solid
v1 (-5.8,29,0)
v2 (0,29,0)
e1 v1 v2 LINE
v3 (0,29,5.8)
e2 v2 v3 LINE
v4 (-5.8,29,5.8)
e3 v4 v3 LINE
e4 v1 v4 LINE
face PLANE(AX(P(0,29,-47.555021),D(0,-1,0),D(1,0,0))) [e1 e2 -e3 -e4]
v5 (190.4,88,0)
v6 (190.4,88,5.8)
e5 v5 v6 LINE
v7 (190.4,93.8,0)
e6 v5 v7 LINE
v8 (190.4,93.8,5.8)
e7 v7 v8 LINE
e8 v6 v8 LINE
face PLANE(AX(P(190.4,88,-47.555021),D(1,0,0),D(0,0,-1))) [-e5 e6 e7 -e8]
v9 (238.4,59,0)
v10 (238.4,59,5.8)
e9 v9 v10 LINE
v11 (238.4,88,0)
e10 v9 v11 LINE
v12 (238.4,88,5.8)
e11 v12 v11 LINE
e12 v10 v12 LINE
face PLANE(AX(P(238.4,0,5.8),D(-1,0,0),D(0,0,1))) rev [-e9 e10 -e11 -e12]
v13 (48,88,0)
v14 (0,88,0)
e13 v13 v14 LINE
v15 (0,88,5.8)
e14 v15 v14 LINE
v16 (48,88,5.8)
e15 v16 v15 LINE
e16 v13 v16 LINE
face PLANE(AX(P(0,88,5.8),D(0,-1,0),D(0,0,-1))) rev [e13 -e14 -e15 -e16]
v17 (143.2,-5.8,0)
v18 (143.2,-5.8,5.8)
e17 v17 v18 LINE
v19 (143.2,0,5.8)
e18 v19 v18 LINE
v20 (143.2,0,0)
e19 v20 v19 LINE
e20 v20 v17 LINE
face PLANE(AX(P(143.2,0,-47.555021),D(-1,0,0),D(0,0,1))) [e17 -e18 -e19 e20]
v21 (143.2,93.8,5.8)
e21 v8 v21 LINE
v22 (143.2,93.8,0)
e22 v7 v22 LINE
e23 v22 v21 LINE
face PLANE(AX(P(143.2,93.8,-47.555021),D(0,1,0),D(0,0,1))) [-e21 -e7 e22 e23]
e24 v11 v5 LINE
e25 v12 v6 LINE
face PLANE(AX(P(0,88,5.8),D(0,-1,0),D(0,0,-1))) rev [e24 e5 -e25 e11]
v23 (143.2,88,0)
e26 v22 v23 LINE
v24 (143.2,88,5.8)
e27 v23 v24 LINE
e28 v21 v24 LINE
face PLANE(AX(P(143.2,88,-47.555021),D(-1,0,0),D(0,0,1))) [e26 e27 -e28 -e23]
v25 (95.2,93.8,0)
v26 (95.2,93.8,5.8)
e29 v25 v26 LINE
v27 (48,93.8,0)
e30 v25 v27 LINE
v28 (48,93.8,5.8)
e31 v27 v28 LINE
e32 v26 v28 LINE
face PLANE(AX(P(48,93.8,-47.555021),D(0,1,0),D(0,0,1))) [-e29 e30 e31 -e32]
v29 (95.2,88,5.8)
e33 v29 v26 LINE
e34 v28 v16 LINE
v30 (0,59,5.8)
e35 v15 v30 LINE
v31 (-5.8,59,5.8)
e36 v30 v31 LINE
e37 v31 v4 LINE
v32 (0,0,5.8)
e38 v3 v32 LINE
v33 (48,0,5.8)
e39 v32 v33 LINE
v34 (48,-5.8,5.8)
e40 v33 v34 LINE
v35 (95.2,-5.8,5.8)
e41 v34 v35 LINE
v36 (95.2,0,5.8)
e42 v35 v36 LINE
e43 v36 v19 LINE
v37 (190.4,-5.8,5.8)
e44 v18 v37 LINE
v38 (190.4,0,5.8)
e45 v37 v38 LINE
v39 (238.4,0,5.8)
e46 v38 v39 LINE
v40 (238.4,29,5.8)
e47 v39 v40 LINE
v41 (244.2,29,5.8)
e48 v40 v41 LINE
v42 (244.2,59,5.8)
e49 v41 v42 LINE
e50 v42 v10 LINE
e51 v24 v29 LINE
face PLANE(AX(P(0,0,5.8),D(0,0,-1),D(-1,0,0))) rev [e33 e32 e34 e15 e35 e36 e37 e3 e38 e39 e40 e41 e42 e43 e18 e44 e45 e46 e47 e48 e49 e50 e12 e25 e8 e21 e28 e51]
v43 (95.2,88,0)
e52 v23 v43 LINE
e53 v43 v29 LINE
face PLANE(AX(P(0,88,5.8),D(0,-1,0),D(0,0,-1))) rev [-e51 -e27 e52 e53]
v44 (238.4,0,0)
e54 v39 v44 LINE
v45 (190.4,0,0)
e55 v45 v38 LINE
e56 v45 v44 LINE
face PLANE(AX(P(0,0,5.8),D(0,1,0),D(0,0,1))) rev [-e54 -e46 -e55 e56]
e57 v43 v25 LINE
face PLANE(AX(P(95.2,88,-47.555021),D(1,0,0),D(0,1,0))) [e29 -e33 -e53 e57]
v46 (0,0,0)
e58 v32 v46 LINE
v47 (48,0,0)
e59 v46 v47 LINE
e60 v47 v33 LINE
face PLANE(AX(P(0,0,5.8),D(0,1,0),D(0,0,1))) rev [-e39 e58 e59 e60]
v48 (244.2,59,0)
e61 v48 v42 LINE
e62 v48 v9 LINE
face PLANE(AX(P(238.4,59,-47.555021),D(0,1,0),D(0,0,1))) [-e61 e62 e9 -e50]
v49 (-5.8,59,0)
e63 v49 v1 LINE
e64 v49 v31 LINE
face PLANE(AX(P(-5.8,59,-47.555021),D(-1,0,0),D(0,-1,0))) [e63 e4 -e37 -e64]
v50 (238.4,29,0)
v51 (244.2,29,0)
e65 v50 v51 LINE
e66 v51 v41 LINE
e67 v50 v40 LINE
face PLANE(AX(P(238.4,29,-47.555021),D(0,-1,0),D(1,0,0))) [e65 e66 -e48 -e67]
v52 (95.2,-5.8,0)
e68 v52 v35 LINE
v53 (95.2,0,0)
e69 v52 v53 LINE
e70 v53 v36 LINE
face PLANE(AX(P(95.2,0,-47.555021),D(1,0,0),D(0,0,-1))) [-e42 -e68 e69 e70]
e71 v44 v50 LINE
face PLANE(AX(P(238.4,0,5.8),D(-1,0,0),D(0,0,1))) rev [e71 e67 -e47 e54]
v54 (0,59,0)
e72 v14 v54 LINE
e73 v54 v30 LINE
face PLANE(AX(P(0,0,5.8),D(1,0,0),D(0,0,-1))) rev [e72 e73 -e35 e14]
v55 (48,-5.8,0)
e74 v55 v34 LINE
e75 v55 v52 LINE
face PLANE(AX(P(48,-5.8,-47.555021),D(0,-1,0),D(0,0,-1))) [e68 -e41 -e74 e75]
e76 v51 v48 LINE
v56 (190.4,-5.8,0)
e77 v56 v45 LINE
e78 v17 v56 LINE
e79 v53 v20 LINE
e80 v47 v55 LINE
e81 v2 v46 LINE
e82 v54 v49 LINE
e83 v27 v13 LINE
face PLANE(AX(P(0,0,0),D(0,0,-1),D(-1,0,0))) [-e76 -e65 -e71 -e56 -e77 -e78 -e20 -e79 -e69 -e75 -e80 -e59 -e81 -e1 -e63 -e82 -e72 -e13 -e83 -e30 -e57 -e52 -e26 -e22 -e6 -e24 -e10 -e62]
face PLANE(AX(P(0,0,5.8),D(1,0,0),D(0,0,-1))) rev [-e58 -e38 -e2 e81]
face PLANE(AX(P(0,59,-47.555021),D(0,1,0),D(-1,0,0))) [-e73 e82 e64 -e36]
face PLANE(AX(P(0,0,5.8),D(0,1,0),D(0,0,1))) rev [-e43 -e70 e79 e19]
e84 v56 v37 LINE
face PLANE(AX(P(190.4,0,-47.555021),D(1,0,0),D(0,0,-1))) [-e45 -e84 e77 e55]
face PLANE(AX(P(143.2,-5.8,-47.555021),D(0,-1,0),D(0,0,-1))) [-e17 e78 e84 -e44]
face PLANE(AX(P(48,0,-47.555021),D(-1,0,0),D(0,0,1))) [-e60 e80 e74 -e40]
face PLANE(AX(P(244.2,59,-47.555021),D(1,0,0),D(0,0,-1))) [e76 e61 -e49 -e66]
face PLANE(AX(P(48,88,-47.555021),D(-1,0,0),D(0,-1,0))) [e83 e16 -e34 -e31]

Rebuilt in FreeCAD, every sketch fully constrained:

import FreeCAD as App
import Part
import Sketcher

doc = App.newDocument("Part")
body = doc.addObject("PartDesign::Body", "Body")

# Sketch on XY plane
sketch1 = doc.addObject("Sketcher::SketchObject", "Sketch")
body.addObject(sketch1)
sketch1.AttachmentSupport = (doc.XY_Plane, [""])
sketch1.MapMode = "FlatFace"
sketch1.addGeometry([
    Part.LineSegment(App.Vector(0, 88, 0), App.Vector(0, 0, 0)),
    Part.LineSegment(App.Vector(0, 0, 0), App.Vector(238, 0, 0)),
    Part.LineSegment(App.Vector(238, 0, 0), App.Vector(238, 88, 0)),
    Part.LineSegment(App.Vector(238, 88, 0), App.Vector(0, 88, 0)),
], False)
sketch1.addConstraint([
    Sketcher.Constraint("Coincident", 0, 2, 1, 1),
    Sketcher.Constraint("Coincident", 1, 2, 2, 1),
    Sketcher.Constraint("Coincident", 2, 2, 3, 1),
    Sketcher.Constraint("Coincident", 3, 2, 0, 1),
    Sketcher.Constraint("Vertical", 0),
    Sketcher.Constraint("Horizontal", 1),
    Sketcher.Constraint("Vertical", 2),
    Sketcher.Constraint("Horizontal", 3),
    Sketcher.Constraint("Coincident", 0, 2, -1, 1),
    Sketcher.Constraint("DistanceY", 0, 2, 0, 1, 88.0),
    Sketcher.Constraint("DistanceX", 1, 1, 1, 2, 238.4),
])
pad1 = doc.addObject("PartDesign::Pad", "Pad")
body.addObject(pad1)
pad1.Profile = sketch1
pad1.Length = 5.8

# Sketch on XY plane
sketch2 = doc.addObject("Sketcher::SketchObject", "Sketch001")
body.addObject(sketch2)
sketch2.AttachmentSupport = (doc.XY_Plane, [""])
sketch2.MapMode = "FlatFace"
sketch2.AttachmentOffset = App.Placement(App.Vector(0, 0, 5.8), App.Rotation())
sketch2.addGeometry([
    Part.LineSegment(App.Vector(-6, 59, 0), App.Vector(-6, 29, 0)),  # 0
    Part.LineSegment(App.Vector(-6, 29, 0), App.Vector(0, 29, 0)),  # 1
    Part.LineSegment(App.Vector(0, 29, 0), App.Vector(0, 59, 0)),  # 2
    Part.LineSegment(App.Vector(0, 59, 0), App.Vector(-6, 59, 0)),  # 3
    Part.LineSegment(App.Vector(238, 59, 0), App.Vector(238, 29, 0)),  # 4
    Part.LineSegment(App.Vector(238, 29, 0), App.Vector(244, 29, 0)),  # 5
    Part.LineSegment(App.Vector(244, 29, 0), App.Vector(244, 59, 0)),  # 6
    Part.LineSegment(App.Vector(244, 59, 0), App.Vector(238, 59, 0)),  # 7
    Part.LineSegment(App.Vector(48, 94, 0), App.Vector(48, 88, 0)),  # 8
    Part.LineSegment(App.Vector(48, 88, 0), App.Vector(95, 88, 0)),  # 9
    Part.LineSegment(App.Vector(95, 88, 0), App.Vector(95, 94, 0)),  # 10
    Part.LineSegment(App.Vector(95, 94, 0), App.Vector(48, 94, 0)),  # 11
    Part.LineSegment(App.Vector(143, 94, 0), App.Vector(143, 88, 0)),  # 12
    Part.LineSegment(App.Vector(143, 88, 0), App.Vector(190, 88, 0)),  # 13
    Part.LineSegment(App.Vector(190, 88, 0), App.Vector(190, 94, 0)),  # 14
    Part.LineSegment(App.Vector(190, 94, 0), App.Vector(143, 94, 0)),  # 15
    Part.LineSegment(App.Vector(48, 0, 0), App.Vector(48, -6, 0)),  # 16
    Part.LineSegment(App.Vector(48, -6, 0), App.Vector(95, -6, 0)),  # 17
    Part.LineSegment(App.Vector(95, -6, 0), App.Vector(95, 0, 0)),  # 18
    Part.LineSegment(App.Vector(95, 0, 0), App.Vector(48, 0, 0)),  # 19
    Part.LineSegment(App.Vector(143, 0, 0), App.Vector(143, -6, 0)),  # 20
    Part.LineSegment(App.Vector(143, -6, 0), App.Vector(190, -6, 0)),  # 21
    Part.LineSegment(App.Vector(190, -6, 0), App.Vector(190, 0, 0)),  # 22
    Part.LineSegment(App.Vector(190, 0, 0), App.Vector(143, 0, 0)),  # 23
], False)
sketch2.addConstraint([
    Sketcher.Constraint("Coincident", 0, 2, 1, 1),
    Sketcher.Constraint("Coincident", 1, 2, 2, 1),
    Sketcher.Constraint("Coincident", 2, 2, 3, 1),
    Sketcher.Constraint("Coincident", 3, 2, 0, 1),
    Sketcher.Constraint("Coincident", 4, 2, 5, 1),
    Sketcher.Constraint("Coincident", 5, 2, 6, 1),
    Sketcher.Constraint("Coincident", 6, 2, 7, 1),
    Sketcher.Constraint("Coincident", 7, 2, 4, 1),
    Sketcher.Constraint("Coincident", 8, 2, 9, 1),
    Sketcher.Constraint("Coincident", 9, 2, 10, 1),
    Sketcher.Constraint("Coincident", 10, 2, 11, 1),
    Sketcher.Constraint("Coincident", 11, 2, 8, 1),
    Sketcher.Constraint("Coincident", 12, 2, 13, 1),
    Sketcher.Constraint("Coincident", 13, 2, 14, 1),
    Sketcher.Constraint("Coincident", 14, 2, 15, 1),
    Sketcher.Constraint("Coincident", 15, 2, 12, 1),
    Sketcher.Constraint("Coincident", 16, 2, 17, 1),
    Sketcher.Constraint("Coincident", 17, 2, 18, 1),
    Sketcher.Constraint("Coincident", 18, 2, 19, 1),
    Sketcher.Constraint("Coincident", 19, 2, 16, 1),
    Sketcher.Constraint("Coincident", 20, 2, 21, 1),
    Sketcher.Constraint("Coincident", 21, 2, 22, 1),
    Sketcher.Constraint("Coincident", 22, 2, 23, 1),
    Sketcher.Constraint("Coincident", 23, 2, 20, 1),
    Sketcher.Constraint("Vertical", 0),
    Sketcher.Constraint("Horizontal", 1),
    Sketcher.Constraint("Vertical", 2),
    Sketcher.Constraint("Horizontal", 3),
    Sketcher.Constraint("Vertical", 4),
    Sketcher.Constraint("Horizontal", 5),
    Sketcher.Constraint("Vertical", 6),
    Sketcher.Constraint("Horizontal", 7),
    Sketcher.Constraint("Vertical", 8),
    Sketcher.Constraint("Horizontal", 9),
    Sketcher.Constraint("Vertical", 10),
    Sketcher.Constraint("Horizontal", 11),
    Sketcher.Constraint("Vertical", 12),
    Sketcher.Constraint("Horizontal", 13),
    Sketcher.Constraint("Vertical", 14),
    Sketcher.Constraint("Horizontal", 15),
    Sketcher.Constraint("Vertical", 16),
    Sketcher.Constraint("Horizontal", 17),
    Sketcher.Constraint("Vertical", 18),
    Sketcher.Constraint("Horizontal", 19),
    Sketcher.Constraint("Vertical", 20),
    Sketcher.Constraint("Horizontal", 21),
    Sketcher.Constraint("Vertical", 22),
    Sketcher.Constraint("Horizontal", 23),
    Sketcher.Constraint("PointOnObject", 1, 2, -2),
    Sketcher.Constraint("PointOnObject", 18, 2, -1),
    Sketcher.Constraint("PointOnObject", 22, 2, -1),
    Sketcher.Constraint("Horizontal", 1, 2, 4, 2),
    Sketcher.Constraint("Horizontal", 3, 2, 6, 2),
    Sketcher.Constraint("Horizontal", 9, 2, 12, 2),
    Sketcher.Constraint("Horizontal", 11, 2, 14, 2),
    Sketcher.Constraint("Horizontal", 17, 2, 20, 2),
    Sketcher.Constraint("Vertical", 11, 2, 16, 2),
    Sketcher.Constraint("Vertical", 10, 2, 17, 2),
    Sketcher.Constraint("Vertical", 15, 2, 20, 2),
    Sketcher.Constraint("Vertical", 14, 2, 21, 2),
    Sketcher.Constraint("Equal", 3, 5),
    Sketcher.Constraint("Equal", 11, 13),
    Sketcher.Constraint("Equal", 7, 8),
    Sketcher.Constraint("Equal", 14, 16),
    Sketcher.Constraint("DistanceY", 0, 2, 0, 1, 30.0),
    Sketcher.Constraint("DistanceX", 1, 1, 1, 2, 5.8),
    Sketcher.Constraint("DistanceX", 9, 1, 9, 2, 47.2),
    Sketcher.Constraint("DistanceY", -1, 1, 0, 2, 29.0),
    Sketcher.Constraint("DistanceX", -1, 1, 8, 2, 48.0),
    Sketcher.Constraint("DistanceY", -1, 1, 8, 2, 88.0),
    Sketcher.Constraint("DistanceX", 0, 2, 5, 2, 250.0),
    Sketcher.Constraint("DistanceX", 9, 2, 12, 2, 48.0),
])
pad2 = doc.addObject("PartDesign::Pad", "Pad001")
body.addObject(pad2)
pad2.Profile = sketch2
pad2.Length = 5.8
pad2.Reversed = True

doc.recompute()
